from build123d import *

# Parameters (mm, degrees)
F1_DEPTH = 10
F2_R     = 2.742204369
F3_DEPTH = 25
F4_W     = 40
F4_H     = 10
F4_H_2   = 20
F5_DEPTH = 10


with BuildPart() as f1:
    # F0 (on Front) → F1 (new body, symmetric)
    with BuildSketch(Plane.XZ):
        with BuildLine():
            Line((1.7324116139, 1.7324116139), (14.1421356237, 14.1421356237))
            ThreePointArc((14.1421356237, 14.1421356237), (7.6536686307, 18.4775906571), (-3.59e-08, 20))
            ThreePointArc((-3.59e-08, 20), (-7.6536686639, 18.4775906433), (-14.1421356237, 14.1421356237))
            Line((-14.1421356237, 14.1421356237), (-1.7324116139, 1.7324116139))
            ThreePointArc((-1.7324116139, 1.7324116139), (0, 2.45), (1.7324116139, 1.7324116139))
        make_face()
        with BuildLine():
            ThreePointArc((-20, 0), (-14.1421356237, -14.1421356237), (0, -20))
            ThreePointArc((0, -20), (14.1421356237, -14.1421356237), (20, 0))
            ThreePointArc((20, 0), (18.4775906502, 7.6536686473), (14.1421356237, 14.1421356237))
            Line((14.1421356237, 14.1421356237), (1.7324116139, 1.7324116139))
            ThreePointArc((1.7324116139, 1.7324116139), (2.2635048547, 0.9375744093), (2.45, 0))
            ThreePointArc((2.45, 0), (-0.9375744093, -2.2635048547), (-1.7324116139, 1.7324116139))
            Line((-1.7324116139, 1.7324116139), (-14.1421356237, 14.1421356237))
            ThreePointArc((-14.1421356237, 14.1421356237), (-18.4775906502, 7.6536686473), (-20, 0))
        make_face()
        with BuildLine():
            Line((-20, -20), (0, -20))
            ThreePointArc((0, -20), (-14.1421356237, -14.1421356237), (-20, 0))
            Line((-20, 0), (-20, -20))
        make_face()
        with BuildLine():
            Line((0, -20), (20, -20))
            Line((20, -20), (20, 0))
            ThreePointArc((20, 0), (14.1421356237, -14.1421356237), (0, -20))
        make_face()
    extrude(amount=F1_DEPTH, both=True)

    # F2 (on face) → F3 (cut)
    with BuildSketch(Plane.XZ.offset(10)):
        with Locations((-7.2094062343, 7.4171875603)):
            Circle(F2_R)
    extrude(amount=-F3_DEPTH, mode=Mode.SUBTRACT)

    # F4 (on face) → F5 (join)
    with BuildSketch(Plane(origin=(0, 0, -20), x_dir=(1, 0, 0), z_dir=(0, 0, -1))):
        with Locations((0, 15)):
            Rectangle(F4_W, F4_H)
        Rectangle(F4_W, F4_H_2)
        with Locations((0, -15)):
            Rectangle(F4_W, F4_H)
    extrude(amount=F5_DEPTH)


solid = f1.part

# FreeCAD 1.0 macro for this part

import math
import FreeCAD as App
import Part
import Sketcher
from FreeCAD import Vector

doc = App.newDocument("Part")
params = doc.addObject("Spreadsheet::Sheet", "Params")
for row, (alias, value) in enumerate([
    ("sketch1_radius", "20 mm"),
    ("sketch1_height", "20 mm"),
    ("sketch1_radius2", "2.45 mm"),
    ("pad1_length", "20 mm"),
    ("pocket1_length", "25 mm"),
    ("sketch3_width", "40 mm"),
    ("pad2_length", "10 mm"),
], start=1):
    params.set(f"A{row}", alias)
    params.set(f"B{row}", "=" + value)
    params.setAlias(f"B{row}", alias)

body = doc.addObject("PartDesign::Body", "Body")

sketch1 = body.newObject("Sketcher::SketchObject", "Sketch")
sketch1.AttachmentSupport = (doc.getObject("XZ_Plane"), [""])
sketch1.MapMode = "FlatFace"
sketch1.addGeometry([
    Part.ArcOfCircle(Part.Circle(Vector(0, 0, 0), Vector(0, 0, 1), 20), math.radians(45), math.radians(90)),
    Part.ArcOfCircle(Part.Circle(Vector(0, 0, 0), Vector(0, 0, 1), 20), math.radians(90), math.radians(135)),
    Part.ArcOfCircle(Part.Circle(Vector(0, 0, 0), Vector(0, 0, 1), 20), math.radians(135), math.radians(180)),
    Part.LineSegment(Vector(-20, 0, 0), Vector(-20, -20, 0)),
    Part.LineSegment(Vector(-20, -20, 0), Vector(20, -20, 0)),
    Part.LineSegment(Vector(20, -20, 0), Vector(20, 0, 0)),
    Part.ArcOfCircle(Part.Circle(Vector(0, 0, 0), Vector(0, 0, 1), 20), math.radians(0), math.radians(45)),
    Part.ArcOfCircle(Part.Circle(Vector(0, 0, 0), Vector(0, 0, 1), 2.5), math.radians(45), math.radians(135)),
    Part.ArcOfCircle(Part.Circle(Vector(0, 0, 0), Vector(0, 0, 1), 2.4), math.radians(0), math.radians(45)),
    Part.ArcOfCircle(Part.Circle(Vector(0, 0, 0), Vector(0, 0, 1), 2.5), math.radians(135), math.radians(360)),
], False)
sketch1.addConstraint([
    Sketcher.Constraint("Tangent", 0, 2, 1, 1),
    Sketcher.Constraint("Tangent", 1, 2, 2, 1),
    Sketcher.Constraint("Tangent", 2, 2, 3, 1),
    Sketcher.Constraint("Coincident", 3, 2, 4, 1),
    Sketcher.Constraint("Coincident", 4, 2, 5, 1),
    Sketcher.Constraint("Tangent", 5, 2, 6, 1),
    Sketcher.Constraint("Tangent", 6, 2, 0, 1),
    Sketcher.Constraint("Tangent", 7, 1, 8, 2),
    Sketcher.Constraint("Tangent", 8, 1, 9, 2),
    Sketcher.Constraint("Tangent", 9, 1, 7, 2),
    Sketcher.Constraint("Vertical", 3),
    Sketcher.Constraint("Horizontal", 4),
    Sketcher.Constraint("Vertical", 5),
    Sketcher.Constraint("Coincident", 0, 3, -1, 1),
    Sketcher.Constraint("Coincident", 2, 3, -1, 1),
    Sketcher.Constraint("Coincident", 7, 3, -1, 1),
    Sketcher.Constraint("Equal", 2, 6),
    Sketcher.Constraint("PointOnObject", 0, 2, -2),
    Sketcher.Constraint("PointOnObject", 8, 1, -1),
    Sketcher.Constraint("Horizontal", 1, 2, 6, 2),
    Sketcher.Constraint("Horizontal", 7, 1, 9, 1),
    Sketcher.Constraint("Radius", 0, 20.0),
    Sketcher.Constraint("DistanceY", 3, 2, 3, 1, 20.0),
    Sketcher.Constraint("Radius", 7, 2.45),
    Sketcher.Constraint("DistanceX", -1, 1, 7, 1, 1.732412),
    Sketcher.Constraint("DistanceX", 1, 2, -1, 1, 14.142136),
])
sketch1.setExpression("Constraints[21]", "Params.sketch1_radius")
sketch1.setExpression("Constraints[22]", "Params.sketch1_height")
sketch1.setExpression("Constraints[23]", "Params.sketch1_radius2")
pad1 = body.newObject("PartDesign::Pad", "Pad")
pad1.Profile = sketch1
pad1.setExpression("Length", "Params.pad1_length")
pad1.Midplane = True

sketch2 = body.newObject("Sketcher::SketchObject", "Sketch001")
sketch2.AttachmentSupport = (doc.getObject("XZ_Plane"), [""])
sketch2.MapMode = "FlatFace"
sketch2.AttachmentOffset = App.Placement(Vector(0, 0, 10), App.Rotation())
sketch2.addGeometry(Part.Circle(Vector(-7.2, 7.4, 0), Vector(0, 0, 1), 2.7), False)
sketch2.addConstraint([
    Sketcher.Constraint("Diameter", 0, 5.484409),
    Sketcher.Constraint("DistanceX", 0, 3, -1, 1, 7.209406),
    Sketcher.Constraint("DistanceY", -1, 1, 0, 3, 7.417188),
])
pocket1 = body.newObject("PartDesign::Pocket", "Pocket")
pocket1.Profile = sketch2
pocket1.setExpression("Length", "Params.pocket1_length")

sketch3 = body.newObject("Sketcher::SketchObject", "Sketch002")
sketch3.AttachmentSupport = (doc.getObject("XY_Plane"), [""])
sketch3.MapMode = "FlatFace"
sketch3.AttachmentOffset = App.Placement(Vector(0, 0, -20), App.Rotation())
sketch3.addGeometry([
    Part.LineSegment(Vector(-20, -20, 0), Vector(-20, 20, 0)),
    Part.LineSegment(Vector(-20, 20, 0), Vector(20, 20, 0)),
    Part.LineSegment(Vector(20, 20, 0), Vector(20, -20, 0)),
    Part.LineSegment(Vector(20, -20, 0), Vector(-20, -20, 0)),
], False)
sketch3.addConstraint([
    Sketcher.Constraint("Coincident", 0, 2, 1, 1),
    Sketcher.Constraint("Coincident", 1, 2, 2, 1),
    Sketcher.Constraint("Coincident", 2, 2, 3, 1),
    Sketcher.Constraint("Coincident", 3, 2, 0, 1),
    Sketcher.Constraint("Vertical", 0),
    Sketcher.Constraint("Horizontal", 1),
    Sketcher.Constraint("Vertical", 2),
    Sketcher.Constraint("Horizontal", 3),
    Sketcher.Constraint("Symmetric", 0, 2, 2, 2, -1, 1),
    Sketcher.Constraint("Equal", 3, 0),
    Sketcher.Constraint("DistanceX", 1, 1, 1, 2, 40.0),
])
sketch3.setExpression("Constraints[10]", "Params.sketch3_width")
pad2 = body.newObject("PartDesign::Pad", "Pad001")
pad2.Profile = sketch3
pad2.setExpression("Length", "Params.pad2_length")
pad2.Reversed = True

doc.recompute()
